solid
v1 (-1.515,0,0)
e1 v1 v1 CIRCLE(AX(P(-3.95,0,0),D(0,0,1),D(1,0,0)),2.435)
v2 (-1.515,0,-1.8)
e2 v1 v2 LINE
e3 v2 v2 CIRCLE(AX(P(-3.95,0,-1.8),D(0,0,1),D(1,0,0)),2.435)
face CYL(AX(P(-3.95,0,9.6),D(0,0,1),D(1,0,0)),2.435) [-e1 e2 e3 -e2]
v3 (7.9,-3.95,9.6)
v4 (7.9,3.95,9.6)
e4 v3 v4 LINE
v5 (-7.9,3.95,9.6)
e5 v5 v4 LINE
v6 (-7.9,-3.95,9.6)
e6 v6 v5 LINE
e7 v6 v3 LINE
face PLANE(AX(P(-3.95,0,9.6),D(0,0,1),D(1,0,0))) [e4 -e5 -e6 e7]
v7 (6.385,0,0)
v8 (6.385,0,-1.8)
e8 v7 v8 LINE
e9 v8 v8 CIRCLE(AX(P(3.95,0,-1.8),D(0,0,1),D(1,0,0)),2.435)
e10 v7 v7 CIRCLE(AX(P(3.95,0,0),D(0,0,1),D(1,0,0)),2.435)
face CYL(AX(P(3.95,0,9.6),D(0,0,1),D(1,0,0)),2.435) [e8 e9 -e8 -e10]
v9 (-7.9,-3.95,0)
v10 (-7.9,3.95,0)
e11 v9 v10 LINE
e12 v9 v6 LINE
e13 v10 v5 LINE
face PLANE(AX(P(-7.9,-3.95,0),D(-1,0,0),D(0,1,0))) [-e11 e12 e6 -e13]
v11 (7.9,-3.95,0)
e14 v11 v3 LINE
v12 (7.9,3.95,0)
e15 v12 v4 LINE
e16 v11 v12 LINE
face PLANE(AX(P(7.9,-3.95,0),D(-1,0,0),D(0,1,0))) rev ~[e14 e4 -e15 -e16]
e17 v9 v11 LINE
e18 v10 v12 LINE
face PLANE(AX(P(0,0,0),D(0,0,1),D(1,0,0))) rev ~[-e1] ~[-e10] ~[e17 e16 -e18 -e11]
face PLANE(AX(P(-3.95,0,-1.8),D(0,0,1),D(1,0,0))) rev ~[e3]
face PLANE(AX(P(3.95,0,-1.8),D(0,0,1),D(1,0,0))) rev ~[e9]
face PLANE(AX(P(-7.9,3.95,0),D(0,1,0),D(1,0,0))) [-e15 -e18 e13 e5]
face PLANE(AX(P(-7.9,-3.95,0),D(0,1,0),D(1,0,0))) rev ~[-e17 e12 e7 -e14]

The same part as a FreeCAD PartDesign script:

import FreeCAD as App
import Part
import Sketcher
from FreeCAD import Vector
Q = App.Units.Quantity


def add_polygon(sketch, points):
    """Adds a closed chain of lines whose ends are joined by coincident constraints."""
    first, n = sketch.GeometryCount, len(points)
    for a, b in zip(points, points[1:] + points[:1]):
        sketch.addGeometry(Part.LineSegment(App.Vector(*a, 0), App.Vector(*b, 0)), False)
    for i in range(n):
        sketch.addConstraint(Sketcher.Constraint("Coincident", first + i, 2, first + (i + 1) % n, 1))

doc = App.newDocument("Part")
body = doc.addObject("PartDesign::Body", "Body")

# Sketch on XY plane
sketch1 = doc.addObject("Sketcher::SketchObject", "Sketch")
body.addObject(sketch1)
sketch1.AttachmentSupport = (doc.XY_Plane, [""])
sketch1.MapMode = "FlatFace"
add_polygon(sketch1, [(-8, 4), (-8, -4), (8, -4), (8, 4)])  # lines 0-3
sketch1.addConstraint([
    Sketcher.Constraint("Vertical", 0),
    Sketcher.Constraint("Horizontal", 1),
    Sketcher.Constraint("Vertical", 2),
    Sketcher.Constraint("Horizontal", 3),
    Sketcher.Constraint("Symmetric", 0, 2, 2, 2, -1, 1),
    Sketcher.Constraint("DistanceX", 1, 1, 1, 2, Q("15.8 mm")),
    Sketcher.Constraint("DistanceY", 0, 2, 0, 1, Q("7.9 mm")),
])
pad1 = doc.addObject("PartDesign::Pad", "Pad")
body.addObject(pad1)
pad1.Profile = sketch1
pad1.Length = 9.6

# Sketch on XY plane
sketch2 = doc.addObject("Sketcher::SketchObject", "Sketch001")
body.addObject(sketch2)
sketch2.AttachmentSupport = (doc.XY_Plane, [""])
sketch2.MapMode = "FlatFace"
sketch2.AttachmentOffset = App.Placement(Vector(0, 0, 9.6), App.Rotation())
sketch2.addGeometry([
    Part.Circle(Vector(-4, 0, 0), Vector(0, 0, 1), 2.4),
    Part.Circle(Vector(4, 0, 0), Vector(0, 0, 1), 2.4),
], False)
sketch2.addConstraint([
    Sketcher.Constraint("Equal", 0, 1),
    Sketcher.Constraint("Symmetric", 0, 3, 1, 3, -1, 1),
    Sketcher.Constraint("PointOnObject", 0, 3, -1),
    Sketcher.Constraint("Diameter", 0, Q("4.87 mm")),
    Sketcher.Constraint("DistanceX", 0, 3, 1, 3, Q("7.9 mm")),
])
pad2 = doc.addObject("PartDesign::Pad", "Pad001")
body.addObject(pad2)
pad2.Profile = sketch2
pad2.Length = 11.4
pad2.Reversed = True

doc.recompute()
